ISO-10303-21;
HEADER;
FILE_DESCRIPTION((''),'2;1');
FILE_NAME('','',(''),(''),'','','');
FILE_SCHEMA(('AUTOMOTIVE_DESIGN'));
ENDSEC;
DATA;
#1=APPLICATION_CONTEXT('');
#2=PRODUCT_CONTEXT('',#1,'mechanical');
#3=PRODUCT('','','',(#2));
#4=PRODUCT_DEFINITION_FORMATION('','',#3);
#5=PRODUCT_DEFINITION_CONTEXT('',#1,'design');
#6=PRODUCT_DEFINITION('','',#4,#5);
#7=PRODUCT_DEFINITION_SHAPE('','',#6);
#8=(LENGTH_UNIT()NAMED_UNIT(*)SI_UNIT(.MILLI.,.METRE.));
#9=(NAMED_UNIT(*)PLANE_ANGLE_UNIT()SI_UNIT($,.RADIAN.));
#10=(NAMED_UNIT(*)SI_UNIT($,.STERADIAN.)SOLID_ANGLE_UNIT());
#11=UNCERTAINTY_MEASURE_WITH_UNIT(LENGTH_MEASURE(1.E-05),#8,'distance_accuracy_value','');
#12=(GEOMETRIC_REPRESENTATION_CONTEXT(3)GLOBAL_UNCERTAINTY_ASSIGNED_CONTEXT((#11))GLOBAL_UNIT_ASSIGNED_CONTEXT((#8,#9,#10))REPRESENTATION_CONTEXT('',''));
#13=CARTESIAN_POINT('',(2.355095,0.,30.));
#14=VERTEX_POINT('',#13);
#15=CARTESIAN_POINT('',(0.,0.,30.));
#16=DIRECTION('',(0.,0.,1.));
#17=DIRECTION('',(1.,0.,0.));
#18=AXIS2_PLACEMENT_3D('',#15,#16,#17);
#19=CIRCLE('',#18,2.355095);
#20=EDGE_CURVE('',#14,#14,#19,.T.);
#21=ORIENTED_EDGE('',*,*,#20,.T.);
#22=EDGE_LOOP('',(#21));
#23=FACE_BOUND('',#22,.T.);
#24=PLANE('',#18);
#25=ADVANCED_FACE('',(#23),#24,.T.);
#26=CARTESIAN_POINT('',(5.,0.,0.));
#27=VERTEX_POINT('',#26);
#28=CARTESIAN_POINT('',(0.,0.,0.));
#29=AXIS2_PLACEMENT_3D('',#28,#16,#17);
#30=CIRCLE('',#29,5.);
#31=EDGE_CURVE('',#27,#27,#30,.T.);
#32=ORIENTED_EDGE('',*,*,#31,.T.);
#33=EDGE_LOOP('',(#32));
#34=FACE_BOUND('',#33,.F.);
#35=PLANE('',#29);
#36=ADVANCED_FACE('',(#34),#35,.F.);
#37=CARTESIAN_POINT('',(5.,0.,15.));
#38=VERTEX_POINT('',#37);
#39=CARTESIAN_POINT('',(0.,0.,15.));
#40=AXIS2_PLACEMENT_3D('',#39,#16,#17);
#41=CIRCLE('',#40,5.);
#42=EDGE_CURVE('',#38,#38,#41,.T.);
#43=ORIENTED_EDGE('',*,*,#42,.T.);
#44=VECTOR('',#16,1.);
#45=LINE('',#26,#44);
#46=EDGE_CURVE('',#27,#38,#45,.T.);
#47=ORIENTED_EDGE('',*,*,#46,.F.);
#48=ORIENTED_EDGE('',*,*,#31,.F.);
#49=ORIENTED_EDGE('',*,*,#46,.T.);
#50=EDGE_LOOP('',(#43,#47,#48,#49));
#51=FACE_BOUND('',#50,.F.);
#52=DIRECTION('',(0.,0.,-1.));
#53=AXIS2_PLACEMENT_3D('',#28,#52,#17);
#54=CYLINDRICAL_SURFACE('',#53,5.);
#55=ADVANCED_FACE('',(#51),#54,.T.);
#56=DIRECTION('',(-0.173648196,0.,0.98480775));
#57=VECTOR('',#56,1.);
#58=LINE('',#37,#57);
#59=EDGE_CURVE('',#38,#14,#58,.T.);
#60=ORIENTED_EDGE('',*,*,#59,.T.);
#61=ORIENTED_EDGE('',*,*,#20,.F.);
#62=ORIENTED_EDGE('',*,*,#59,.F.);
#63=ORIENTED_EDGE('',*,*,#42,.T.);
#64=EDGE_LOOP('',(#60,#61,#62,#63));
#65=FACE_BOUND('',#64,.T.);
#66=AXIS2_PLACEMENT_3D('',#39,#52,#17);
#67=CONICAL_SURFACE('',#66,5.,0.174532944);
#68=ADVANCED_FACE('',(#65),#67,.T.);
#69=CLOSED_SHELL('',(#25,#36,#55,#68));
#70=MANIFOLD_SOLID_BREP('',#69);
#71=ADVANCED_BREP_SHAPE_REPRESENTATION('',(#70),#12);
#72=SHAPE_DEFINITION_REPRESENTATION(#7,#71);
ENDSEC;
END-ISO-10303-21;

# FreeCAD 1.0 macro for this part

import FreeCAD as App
import Part
import Sketcher

V = App.Vector


def edges_at(feature, points):
    """Names of the edges that pass closest to the given points."""
    edges = feature.Shape.Edges
    near = lambda p: min(range(len(edges)), key=lambda i: edges[i].distToShape(Part.Vertex(*p))[0])
    return sorted({f"Edge{near(p) + 1}" for p in points})

doc = App.newDocument("Part")
params = doc.addObject("Spreadsheet::Sheet", "Params")
for row, (alias, value) in enumerate([
    ("sketch1_diameter", "10 mm"),
    ("pad1_length", "30 mm"),
    ("chamfer_size", "15 mm"),
    ("chamfer_size2", "2.644905 mm"),
], start=1):
    params.set(f"A{row}", alias)
    params.set(f"B{row}", "=" + value)
    params.setAlias(f"B{row}", alias)

body = doc.addObject("PartDesign::Body", "Body")

# Sketch on XY plane
sketch1 = body.newObject("Sketcher::SketchObject", "Sketch")
sketch1.AttachmentSupport = (doc.getObject("XY_Plane"), [""])
sketch1.MapMode = "FlatFace"
sketch1.addGeometry(Part.Circle(V(0, 0, 0), V(0, 0, 1), 5), False)
sketch1.addConstraint(Sketcher.Constraint("Coincident", 0, 3, -1, 1))
sketch1.addConstraint(Sketcher.Constraint("Diameter", 0, 10.0))
sketch1.setExpression("Constraints[1]", "Params.sketch1_diameter")
pad1 = body.newObject("PartDesign::Pad", "Pad")
pad1.Profile = sketch1
pad1.setExpression("Length", "Params.pad1_length")
doc.recompute()

chamfer = body.newObject("PartDesign::Chamfer", "Chamfer")
chamfer.Base = (pad1, edges_at(pad1, [(-5, 0, 30)]))
chamfer.ChamferType = "Two distances"
chamfer.setExpression("Size", "Params.chamfer_size")
chamfer.setExpression("Size2", "Params.chamfer_size2")

doc.recompute()
